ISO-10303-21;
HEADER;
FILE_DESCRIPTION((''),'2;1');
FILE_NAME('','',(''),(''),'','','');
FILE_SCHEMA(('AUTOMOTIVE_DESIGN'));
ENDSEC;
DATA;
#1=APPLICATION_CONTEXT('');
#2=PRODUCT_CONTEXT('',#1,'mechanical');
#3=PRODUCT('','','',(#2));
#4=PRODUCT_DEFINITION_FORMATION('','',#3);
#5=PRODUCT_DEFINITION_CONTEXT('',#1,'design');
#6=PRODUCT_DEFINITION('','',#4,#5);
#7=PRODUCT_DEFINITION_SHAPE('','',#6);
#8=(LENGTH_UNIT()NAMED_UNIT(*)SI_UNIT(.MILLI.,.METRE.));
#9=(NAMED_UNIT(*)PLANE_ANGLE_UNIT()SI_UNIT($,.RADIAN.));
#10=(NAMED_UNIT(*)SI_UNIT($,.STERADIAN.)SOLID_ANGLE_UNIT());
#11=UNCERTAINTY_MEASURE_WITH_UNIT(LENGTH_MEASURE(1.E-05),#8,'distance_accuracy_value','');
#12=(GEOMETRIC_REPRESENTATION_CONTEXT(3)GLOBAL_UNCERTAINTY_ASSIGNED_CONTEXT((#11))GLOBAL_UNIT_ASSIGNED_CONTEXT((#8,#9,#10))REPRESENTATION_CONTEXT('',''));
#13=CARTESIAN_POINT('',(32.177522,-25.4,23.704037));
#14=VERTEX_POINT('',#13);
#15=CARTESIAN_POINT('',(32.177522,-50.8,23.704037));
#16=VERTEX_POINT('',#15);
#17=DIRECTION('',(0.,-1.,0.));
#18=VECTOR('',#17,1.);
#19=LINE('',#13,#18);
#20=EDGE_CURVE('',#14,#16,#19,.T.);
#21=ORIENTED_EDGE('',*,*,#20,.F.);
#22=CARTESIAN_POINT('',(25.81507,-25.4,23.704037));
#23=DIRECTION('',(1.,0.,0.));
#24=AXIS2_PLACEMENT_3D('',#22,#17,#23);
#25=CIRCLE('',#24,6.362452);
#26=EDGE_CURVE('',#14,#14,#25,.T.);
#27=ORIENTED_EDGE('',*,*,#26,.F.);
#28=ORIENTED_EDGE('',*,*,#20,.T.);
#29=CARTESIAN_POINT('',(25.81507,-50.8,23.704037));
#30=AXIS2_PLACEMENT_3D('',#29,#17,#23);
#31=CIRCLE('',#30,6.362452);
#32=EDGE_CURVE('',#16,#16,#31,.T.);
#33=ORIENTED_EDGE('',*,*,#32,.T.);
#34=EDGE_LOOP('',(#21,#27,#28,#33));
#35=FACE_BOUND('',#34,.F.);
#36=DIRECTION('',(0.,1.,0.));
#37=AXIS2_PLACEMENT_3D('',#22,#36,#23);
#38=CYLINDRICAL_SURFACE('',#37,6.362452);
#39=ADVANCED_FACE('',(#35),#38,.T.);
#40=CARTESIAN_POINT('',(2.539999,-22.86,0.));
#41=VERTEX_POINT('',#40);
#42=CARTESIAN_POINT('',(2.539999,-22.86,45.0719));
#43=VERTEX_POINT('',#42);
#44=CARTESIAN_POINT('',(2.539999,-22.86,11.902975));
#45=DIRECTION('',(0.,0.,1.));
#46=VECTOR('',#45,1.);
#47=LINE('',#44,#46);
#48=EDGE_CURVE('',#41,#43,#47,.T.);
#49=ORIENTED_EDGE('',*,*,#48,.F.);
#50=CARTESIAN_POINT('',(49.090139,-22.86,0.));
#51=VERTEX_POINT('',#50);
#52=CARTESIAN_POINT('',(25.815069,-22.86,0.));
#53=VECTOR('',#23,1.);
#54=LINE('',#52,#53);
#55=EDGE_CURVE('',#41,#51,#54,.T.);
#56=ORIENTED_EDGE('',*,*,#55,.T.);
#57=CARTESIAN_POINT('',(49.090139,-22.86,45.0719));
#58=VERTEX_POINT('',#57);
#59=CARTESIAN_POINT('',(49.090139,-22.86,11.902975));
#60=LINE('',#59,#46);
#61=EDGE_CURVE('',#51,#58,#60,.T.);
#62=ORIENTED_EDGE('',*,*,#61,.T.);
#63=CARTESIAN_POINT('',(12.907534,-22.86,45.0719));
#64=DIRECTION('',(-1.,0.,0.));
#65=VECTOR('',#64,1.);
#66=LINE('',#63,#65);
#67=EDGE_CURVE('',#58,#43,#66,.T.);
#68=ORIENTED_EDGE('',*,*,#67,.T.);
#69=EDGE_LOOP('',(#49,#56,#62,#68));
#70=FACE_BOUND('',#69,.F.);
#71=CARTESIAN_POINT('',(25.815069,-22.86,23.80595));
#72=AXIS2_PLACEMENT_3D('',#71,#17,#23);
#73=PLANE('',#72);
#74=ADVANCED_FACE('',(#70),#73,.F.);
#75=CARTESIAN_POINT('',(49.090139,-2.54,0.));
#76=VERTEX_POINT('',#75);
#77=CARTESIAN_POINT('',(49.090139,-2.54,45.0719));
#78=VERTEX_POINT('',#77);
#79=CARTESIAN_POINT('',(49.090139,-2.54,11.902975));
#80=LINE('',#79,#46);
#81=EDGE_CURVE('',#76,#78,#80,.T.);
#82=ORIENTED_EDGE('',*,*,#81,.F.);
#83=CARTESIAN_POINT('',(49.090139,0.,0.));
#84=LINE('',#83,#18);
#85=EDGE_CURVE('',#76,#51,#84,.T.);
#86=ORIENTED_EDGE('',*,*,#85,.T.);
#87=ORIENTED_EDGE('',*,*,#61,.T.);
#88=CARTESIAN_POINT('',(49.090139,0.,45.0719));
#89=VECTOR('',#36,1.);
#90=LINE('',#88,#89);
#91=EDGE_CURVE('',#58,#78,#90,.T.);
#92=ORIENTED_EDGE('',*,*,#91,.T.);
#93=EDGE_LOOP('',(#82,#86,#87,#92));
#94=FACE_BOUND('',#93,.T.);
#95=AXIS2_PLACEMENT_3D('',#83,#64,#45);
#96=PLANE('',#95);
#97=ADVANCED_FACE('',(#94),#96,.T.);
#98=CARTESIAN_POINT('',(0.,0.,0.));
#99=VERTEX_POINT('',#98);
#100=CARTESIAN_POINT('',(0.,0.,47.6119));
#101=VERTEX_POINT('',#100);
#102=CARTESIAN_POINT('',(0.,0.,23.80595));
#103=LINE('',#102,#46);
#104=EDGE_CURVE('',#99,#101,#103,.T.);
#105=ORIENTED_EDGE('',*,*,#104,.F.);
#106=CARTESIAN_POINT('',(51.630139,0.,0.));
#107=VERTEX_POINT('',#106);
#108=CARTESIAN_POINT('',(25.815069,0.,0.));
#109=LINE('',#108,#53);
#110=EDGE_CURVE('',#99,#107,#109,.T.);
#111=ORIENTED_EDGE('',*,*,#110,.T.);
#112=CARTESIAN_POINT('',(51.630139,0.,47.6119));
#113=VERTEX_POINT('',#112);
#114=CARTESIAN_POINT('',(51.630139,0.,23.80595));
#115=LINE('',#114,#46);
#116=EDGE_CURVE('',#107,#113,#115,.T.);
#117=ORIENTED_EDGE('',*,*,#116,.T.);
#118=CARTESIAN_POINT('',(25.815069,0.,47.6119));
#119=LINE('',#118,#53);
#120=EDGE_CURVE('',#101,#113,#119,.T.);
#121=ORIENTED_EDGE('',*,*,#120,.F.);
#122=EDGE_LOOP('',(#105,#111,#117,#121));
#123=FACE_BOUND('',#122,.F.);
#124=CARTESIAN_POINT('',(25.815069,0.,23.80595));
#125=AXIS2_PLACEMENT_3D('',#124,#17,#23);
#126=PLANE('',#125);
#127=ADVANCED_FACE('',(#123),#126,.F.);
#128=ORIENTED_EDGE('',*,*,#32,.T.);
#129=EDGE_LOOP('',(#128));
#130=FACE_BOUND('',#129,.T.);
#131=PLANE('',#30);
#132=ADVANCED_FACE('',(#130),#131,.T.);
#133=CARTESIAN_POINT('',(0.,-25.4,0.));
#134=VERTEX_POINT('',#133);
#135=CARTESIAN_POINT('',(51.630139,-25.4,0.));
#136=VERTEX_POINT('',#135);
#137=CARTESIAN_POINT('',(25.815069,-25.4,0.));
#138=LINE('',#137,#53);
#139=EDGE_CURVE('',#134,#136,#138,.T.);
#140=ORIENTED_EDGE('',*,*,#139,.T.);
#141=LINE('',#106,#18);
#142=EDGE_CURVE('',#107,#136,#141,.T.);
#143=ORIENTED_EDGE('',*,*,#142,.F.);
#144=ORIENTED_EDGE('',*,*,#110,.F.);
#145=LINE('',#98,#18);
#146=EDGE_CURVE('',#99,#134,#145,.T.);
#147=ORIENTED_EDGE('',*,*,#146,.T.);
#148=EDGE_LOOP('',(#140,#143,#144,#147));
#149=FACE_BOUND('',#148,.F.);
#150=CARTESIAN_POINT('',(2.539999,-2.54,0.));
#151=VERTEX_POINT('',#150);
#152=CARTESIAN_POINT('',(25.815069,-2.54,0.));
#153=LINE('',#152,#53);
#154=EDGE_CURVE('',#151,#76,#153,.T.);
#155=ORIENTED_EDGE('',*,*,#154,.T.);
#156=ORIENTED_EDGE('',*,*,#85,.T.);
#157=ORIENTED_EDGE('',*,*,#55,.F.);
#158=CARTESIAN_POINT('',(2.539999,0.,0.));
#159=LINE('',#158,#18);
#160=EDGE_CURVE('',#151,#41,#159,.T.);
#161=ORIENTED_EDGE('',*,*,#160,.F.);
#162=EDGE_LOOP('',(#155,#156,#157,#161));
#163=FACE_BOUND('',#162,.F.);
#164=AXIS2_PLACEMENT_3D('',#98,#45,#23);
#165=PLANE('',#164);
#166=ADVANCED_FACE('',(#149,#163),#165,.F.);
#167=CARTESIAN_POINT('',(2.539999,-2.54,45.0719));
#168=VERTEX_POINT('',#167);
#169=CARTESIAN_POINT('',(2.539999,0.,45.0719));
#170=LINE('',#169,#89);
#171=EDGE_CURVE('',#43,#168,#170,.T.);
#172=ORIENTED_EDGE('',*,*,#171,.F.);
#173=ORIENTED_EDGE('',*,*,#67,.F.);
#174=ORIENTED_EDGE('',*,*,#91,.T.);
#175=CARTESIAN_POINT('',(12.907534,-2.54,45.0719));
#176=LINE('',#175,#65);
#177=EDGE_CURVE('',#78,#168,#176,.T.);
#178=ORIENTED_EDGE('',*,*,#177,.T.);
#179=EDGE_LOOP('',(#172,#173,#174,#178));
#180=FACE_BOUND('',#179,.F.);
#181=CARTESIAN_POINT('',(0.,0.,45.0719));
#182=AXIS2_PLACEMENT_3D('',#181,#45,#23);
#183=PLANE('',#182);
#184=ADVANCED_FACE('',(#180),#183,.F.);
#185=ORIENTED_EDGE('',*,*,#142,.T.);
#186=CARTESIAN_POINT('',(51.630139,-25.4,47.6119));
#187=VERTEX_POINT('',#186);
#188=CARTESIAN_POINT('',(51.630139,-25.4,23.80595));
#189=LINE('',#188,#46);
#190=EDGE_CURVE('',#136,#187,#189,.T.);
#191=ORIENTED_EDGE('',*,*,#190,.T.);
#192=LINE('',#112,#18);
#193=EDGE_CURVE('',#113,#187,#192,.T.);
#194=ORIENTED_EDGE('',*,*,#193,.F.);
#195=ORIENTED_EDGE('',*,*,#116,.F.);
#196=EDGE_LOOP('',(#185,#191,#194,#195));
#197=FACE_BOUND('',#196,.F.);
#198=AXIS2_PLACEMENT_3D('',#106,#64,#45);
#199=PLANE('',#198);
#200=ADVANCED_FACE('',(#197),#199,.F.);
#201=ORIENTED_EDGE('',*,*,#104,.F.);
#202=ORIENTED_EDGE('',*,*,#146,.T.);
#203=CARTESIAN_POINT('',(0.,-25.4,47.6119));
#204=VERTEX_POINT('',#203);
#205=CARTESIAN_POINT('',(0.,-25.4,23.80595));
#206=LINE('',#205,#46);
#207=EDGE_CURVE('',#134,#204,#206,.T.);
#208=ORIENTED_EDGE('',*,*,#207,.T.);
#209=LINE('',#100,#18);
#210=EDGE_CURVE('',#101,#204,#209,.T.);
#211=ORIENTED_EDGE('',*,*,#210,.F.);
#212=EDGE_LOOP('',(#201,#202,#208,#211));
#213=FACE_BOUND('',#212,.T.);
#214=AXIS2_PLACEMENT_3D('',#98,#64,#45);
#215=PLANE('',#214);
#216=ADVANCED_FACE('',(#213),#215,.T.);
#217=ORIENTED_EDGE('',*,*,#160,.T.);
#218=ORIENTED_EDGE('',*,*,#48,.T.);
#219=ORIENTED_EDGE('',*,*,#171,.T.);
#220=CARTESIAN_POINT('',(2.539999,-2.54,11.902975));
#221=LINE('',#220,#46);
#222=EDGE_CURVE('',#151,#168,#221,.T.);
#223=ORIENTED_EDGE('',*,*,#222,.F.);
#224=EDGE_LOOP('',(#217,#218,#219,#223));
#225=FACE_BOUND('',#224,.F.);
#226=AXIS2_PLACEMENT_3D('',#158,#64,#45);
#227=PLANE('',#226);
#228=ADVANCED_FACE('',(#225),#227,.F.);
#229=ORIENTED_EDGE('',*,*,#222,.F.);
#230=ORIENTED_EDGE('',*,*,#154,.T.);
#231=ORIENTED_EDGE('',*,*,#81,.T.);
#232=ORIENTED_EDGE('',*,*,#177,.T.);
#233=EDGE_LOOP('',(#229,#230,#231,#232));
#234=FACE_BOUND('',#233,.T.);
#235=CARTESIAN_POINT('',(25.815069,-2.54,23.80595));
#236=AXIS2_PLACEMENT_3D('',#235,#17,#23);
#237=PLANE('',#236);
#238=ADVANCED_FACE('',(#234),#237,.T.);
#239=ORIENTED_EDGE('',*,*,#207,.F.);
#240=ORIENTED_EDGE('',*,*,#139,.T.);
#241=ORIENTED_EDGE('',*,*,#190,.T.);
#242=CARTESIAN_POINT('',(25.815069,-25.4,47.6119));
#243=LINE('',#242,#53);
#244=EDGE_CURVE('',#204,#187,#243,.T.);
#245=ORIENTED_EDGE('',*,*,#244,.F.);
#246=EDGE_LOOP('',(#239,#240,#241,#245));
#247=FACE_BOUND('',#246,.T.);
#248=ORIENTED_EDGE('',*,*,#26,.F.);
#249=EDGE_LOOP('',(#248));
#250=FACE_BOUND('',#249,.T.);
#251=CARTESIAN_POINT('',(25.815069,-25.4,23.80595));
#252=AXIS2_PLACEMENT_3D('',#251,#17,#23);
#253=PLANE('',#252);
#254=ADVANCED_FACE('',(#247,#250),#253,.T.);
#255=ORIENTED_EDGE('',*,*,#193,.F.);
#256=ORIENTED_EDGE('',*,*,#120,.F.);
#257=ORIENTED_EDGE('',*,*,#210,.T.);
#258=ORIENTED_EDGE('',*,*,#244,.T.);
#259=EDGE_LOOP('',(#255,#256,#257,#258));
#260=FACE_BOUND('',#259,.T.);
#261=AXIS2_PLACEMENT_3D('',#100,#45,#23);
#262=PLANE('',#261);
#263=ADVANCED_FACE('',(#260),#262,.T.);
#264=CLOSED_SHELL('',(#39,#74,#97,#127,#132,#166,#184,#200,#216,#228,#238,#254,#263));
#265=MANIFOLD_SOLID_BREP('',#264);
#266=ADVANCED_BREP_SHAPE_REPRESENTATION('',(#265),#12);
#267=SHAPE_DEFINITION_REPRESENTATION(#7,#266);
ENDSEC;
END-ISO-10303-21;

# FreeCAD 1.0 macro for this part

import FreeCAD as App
import Part
import Sketcher

V = App.Vector
Q = App.Units.Quantity


def faces_at(feature, points):
    """Names of the faces that lie closest to the given points."""
    faces = feature.Shape.Faces
    near = lambda p: min(range(len(faces)), key=lambda i: faces[i].distToShape(Part.Vertex(*p))[0])
    return sorted({f"Face{near(p) + 1}" for p in points})


def add_polygon(sketch, points):
    """Adds a closed chain of lines whose ends are joined by coincident constraints."""
    first, n = sketch.GeometryCount, len(points)
    for a, b in zip(points, points[1:] + points[:1]):
        sketch.addGeometry(Part.LineSegment(App.Vector(*a, 0), App.Vector(*b, 0)), False)
    for i in range(n):
        sketch.addConstraint(Sketcher.Constraint("Coincident", first + i, 2, first + (i + 1) % n, 1))

doc = App.newDocument("Part")
body = doc.addObject("PartDesign::Body", "Body")

# Sketch on XZ plane
sketch1 = body.newObject("Sketcher::SketchObject", "Sketch")
sketch1.AttachmentSupport = (doc.getObject("XZ_Plane"), [""])
sketch1.MapMode = "FlatFace"
add_polygon(sketch1, [(0, 48), (0, 0), (52, 0), (52, 48)])  # lines 0-3
sketch1.addConstraint([
    Sketcher.Constraint("Vertical", 0),
    Sketcher.Constraint("Horizontal", 1),
    Sketcher.Constraint("Vertical", 2),
    Sketcher.Constraint("Horizontal", 3),
    Sketcher.Constraint("Coincident", 0, 2, -1, 1),
    Sketcher.Constraint("DistanceY", 0, 2, 0, 1, 47.6119),
    Sketcher.Constraint("DistanceX", 1, 1, 1, 2, 51.630139),
])
pad1 = body.newObject("PartDesign::Pad", "Pad")
pad1.Profile = sketch1
pad1.Length = Q("1 in")
doc.recompute()

thickness = body.newObject("PartDesign::Thickness", "Thickness")
thickness.Base = (pad1, faces_at(pad1, [(0, -12.7, 23.806)]))
thickness.Value = Q("5 in")
thickness.Reversed = True
thickness.Join = "Arc"
doc.recompute()

thickness2 = body.newObject("PartDesign::Thickness", "Thickness001")
thickness2.Base = (thickness, faces_at(thickness, [(25.815, -12.7, 0)]))
thickness2.Value = Q("0.1 in")
thickness2.Reversed = True
thickness2.Join = "Arc"

# Sketch on XZ plane
sketch2 = body.newObject("Sketcher::SketchObject", "Sketch001")
sketch2.AttachmentSupport = (doc.getObject("XZ_Plane"), [""])
sketch2.MapMode = "FlatFace"
sketch2.AttachmentOffset = App.Placement(V(0, 0, 1 * 25.4), App.Rotation())
sketch2.addGeometry(Part.Circle(V(26, 24, 0), V(0, 0, 1), 6), False)
sketch2.addConstraint([
    Sketcher.Constraint("Diameter", 0, 12.724904),
    Sketcher.Constraint("DistanceX", -1, 1, 0, 3, 25.81507),
    Sketcher.Constraint("DistanceY", -1, 1, 0, 3, 23.704037),
])
pad2 = body.newObject("PartDesign::Pad", "Pad001")
pad2.Profile = sketch2
pad2.Length = Q("1 in")

doc.recompute()
